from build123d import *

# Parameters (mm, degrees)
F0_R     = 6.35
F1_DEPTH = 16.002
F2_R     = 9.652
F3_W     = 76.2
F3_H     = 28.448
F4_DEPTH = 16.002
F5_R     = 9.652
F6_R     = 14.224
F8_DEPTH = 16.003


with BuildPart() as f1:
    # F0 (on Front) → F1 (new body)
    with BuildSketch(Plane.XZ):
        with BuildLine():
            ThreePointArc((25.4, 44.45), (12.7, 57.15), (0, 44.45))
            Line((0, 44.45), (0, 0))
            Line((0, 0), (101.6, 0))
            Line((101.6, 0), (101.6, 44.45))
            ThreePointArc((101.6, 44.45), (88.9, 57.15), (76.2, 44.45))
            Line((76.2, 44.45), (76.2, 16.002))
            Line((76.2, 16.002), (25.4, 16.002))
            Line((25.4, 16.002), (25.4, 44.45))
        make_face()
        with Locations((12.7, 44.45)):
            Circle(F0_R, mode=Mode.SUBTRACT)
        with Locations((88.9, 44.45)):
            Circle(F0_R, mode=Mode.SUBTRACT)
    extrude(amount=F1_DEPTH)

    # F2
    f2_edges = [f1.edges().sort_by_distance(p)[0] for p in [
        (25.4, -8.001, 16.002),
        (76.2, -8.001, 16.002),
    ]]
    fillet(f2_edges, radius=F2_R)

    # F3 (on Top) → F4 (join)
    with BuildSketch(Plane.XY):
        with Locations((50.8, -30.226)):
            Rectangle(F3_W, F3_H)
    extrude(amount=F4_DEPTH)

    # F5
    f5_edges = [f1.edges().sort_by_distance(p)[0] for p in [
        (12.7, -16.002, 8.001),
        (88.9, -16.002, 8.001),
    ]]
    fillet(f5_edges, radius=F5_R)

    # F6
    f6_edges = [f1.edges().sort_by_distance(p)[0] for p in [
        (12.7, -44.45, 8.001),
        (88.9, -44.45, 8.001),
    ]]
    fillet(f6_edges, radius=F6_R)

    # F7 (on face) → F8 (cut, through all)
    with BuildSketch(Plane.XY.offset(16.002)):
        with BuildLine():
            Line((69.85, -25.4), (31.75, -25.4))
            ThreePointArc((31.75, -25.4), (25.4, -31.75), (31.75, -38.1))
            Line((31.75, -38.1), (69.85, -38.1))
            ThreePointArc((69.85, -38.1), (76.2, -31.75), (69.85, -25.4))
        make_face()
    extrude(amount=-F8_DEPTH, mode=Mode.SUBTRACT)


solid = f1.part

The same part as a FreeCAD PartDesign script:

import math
import FreeCAD as App
import Part
import Sketcher

V = App.Vector
Q = App.Units.Quantity


def edges_at(feature, points):
    """Names of the edges that pass closest to the given points."""
    edges = feature.Shape.Edges
    near = lambda p: min(range(len(edges)), key=lambda i: edges[i].distToShape(Part.Vertex(*p))[0])
    return sorted({f"Edge{near(p) + 1}" for p in points})


def add_polygon(sketch, points):
    """Adds a closed chain of lines whose ends are joined by coincident constraints."""
    first, n = sketch.GeometryCount, len(points)
    for a, b in zip(points, points[1:] + points[:1]):
        sketch.addGeometry(Part.LineSegment(App.Vector(*a, 0), App.Vector(*b, 0)), False)
    for i in range(n):
        sketch.addConstraint(Sketcher.Constraint("Coincident", first + i, 2, first + (i + 1) % n, 1))

doc = App.newDocument("Part")
params = doc.addObject("Spreadsheet::Sheet", "Params")
for row, (alias, value) in enumerate([
    ("sketch1_diameter", "0.5 in"),
    ("sketch1_radius", "0.5 in"),
    ("sketch1_width", "4 in"),
    ("sketch1_height", "1.75 in"),
    ("sketch1_height2", "1.12 in"),
    ("pad1_length", "0.63 in"),
    ("fillet_radius", "0.38 in"),
    ("sketch2_width", "3 in"),
    ("sketch2_height", "1.12 in"),
    ("pad2_length", "0.63 in"),
    ("fillet2_radius", "0.38 in"),
    ("fillet3_radius", "0.56 in"),
    ("sketch3_radius", "0.25 in"),
    ("sketch3_width", "1.5 in"),
], start=1):
    params.set(f"A{row}", alias)
    params.set(f"B{row}", "=" + value)
    params.setAlias(f"B{row}", alias)

body = doc.addObject("PartDesign::Body", "Body")

# Sketch on XZ plane
sketch1 = doc.addObject("Sketcher::SketchObject", "Sketch")
body.addObject(sketch1)
sketch1.AttachmentSupport = (doc.XZ_Plane, [""])
sketch1.MapMode = "FlatFace"
sketch1.addGeometry([
    Part.ArcOfCircle(Part.Circle(V(13, 44, 0), V(0, 0, 1), 13), math.radians(0), math.radians(180)),  # 0
    Part.LineSegment(V(0, 44, 0), V(0, 0, 0)),  # 1
    Part.LineSegment(V(0, 0, 0), V(102, 0, 0)),  # 2
    Part.LineSegment(V(102, 0, 0), V(102, 44, 0)),  # 3
    Part.ArcOfCircle(Part.Circle(V(89, 44, 0), V(0, 0, 1), 13), math.radians(0), math.radians(180)),  # 4
    Part.LineSegment(V(76, 44, 0), V(76, 16, 0)),  # 5
    Part.LineSegment(V(76, 16, 0), V(25, 16, 0)),  # 6
    Part.LineSegment(V(25, 16, 0), V(25, 44, 0)),  # 7
    Part.Circle(V(13, 44, 0), V(0, 0, 1), 6),  # 8
    Part.Circle(V(89, 44, 0), V(0, 0, 1), 6),  # 9
], False)
sketch1.addConstraint([
    Sketcher.Constraint("Tangent", 0, 2, 1, 1),
    Sketcher.Constraint("Coincident", 1, 2, 2, 1),
    Sketcher.Constraint("Coincident", 2, 2, 3, 1),
    Sketcher.Constraint("Tangent", 3, 2, 4, 1),
    Sketcher.Constraint("Tangent", 4, 2, 5, 1),
    Sketcher.Constraint("Coincident", 5, 2, 6, 1),
    Sketcher.Constraint("Coincident", 6, 2, 7, 1),
    Sketcher.Constraint("Tangent", 7, 2, 0, 1),
    Sketcher.Constraint("Vertical", 1),
    Sketcher.Constraint("Horizontal", 2),
    Sketcher.Constraint("Vertical", 3),
    Sketcher.Constraint("Vertical", 5),
    Sketcher.Constraint("Horizontal", 6),
    Sketcher.Constraint("Vertical", 7),
    Sketcher.Constraint("Coincident", 1, 2, -1, 1),
    Sketcher.Constraint("Coincident", 8, 3, 0, 3),
    Sketcher.Constraint("Coincident", 9, 3, 4, 3),
    Sketcher.Constraint("Equal", 0, 4),
    Sketcher.Constraint("Equal", 8, 9),
    Sketcher.Constraint("Horizontal", 0, 3, 4, 3),
    Sketcher.Constraint("Diameter", 8, Q("0.5 in")),
    Sketcher.Constraint("Radius", 0, Q("0.5 in")),
    Sketcher.Constraint("DistanceX", 2, 1, 2, 2, Q("4 in")),
    Sketcher.Constraint("DistanceY", 1, 2, 1, 1, Q("1.75 in")),
    Sketcher.Constraint("DistanceY", 5, 2, 5, 1, Q("1.12 in")),
])
sketch1.setExpression("Constraints[20]", "Params.sketch1_diameter")
sketch1.setExpression("Constraints[21]", "Params.sketch1_radius")
sketch1.setExpression("Constraints[22]", "Params.sketch1_width")
sketch1.setExpression("Constraints[23]", "Params.sketch1_height")
sketch1.setExpression("Constraints[24]", "Params.sketch1_height2")
pad1 = doc.addObject("PartDesign::Pad", "Pad")
body.addObject(pad1)
pad1.Profile = sketch1
pad1.setExpression("Length", "Params.pad1_length")
doc.recompute()

fillet = doc.addObject("PartDesign::Fillet", "Fillet")
body.addObject(fillet)
fillet.Base = (pad1, edges_at(pad1, [(25.4, -8.001, 16.002), (76.2, -8.001, 16.002)]))
fillet.setExpression("Radius", "Params.fillet_radius")

# Sketch on XY plane
sketch2 = doc.addObject("Sketcher::SketchObject", "Sketch001")
body.addObject(sketch2)
sketch2.AttachmentSupport = (doc.XY_Plane, [""])
sketch2.MapMode = "FlatFace"
add_polygon(sketch2, [(13, -16), (13, -44), (89, -44), (89, -16)])  # lines 0-3
sketch2.addConstraint([
    Sketcher.Constraint("Vertical", 0),
    Sketcher.Constraint("Horizontal", 1),
    Sketcher.Constraint("Vertical", 2),
    Sketcher.Constraint("Horizontal", 3),
    Sketcher.Constraint("DistanceX", 1, 1, 1, 2, Q("3 in")),
    Sketcher.Constraint("DistanceY", 0, 2, 0, 1, Q("1.12 in")),
    Sketcher.Constraint("DistanceX", -1, 1, 0, 2, Q("0.5 in")),
    Sketcher.Constraint("DistanceY", 0, 2, -1, 1, Q("1.75 in")),
])
sketch2.setExpression("Constraints[8]", "Params.sketch2_width")
sketch2.setExpression("Constraints[9]", "Params.sketch2_height")
pad2 = doc.addObject("PartDesign::Pad", "Pad001")
body.addObject(pad2)
pad2.Profile = sketch2
pad2.setExpression("Length", "Params.pad2_length")
doc.recompute()

fillet2 = doc.addObject("PartDesign::Fillet", "Fillet001")
body.addObject(fillet2)
fillet2.Base = (pad2, edges_at(pad2, [(12.7, -16.002, 8.001), (88.9, -16.002, 8.001)]))
fillet2.setExpression("Radius", "Params.fillet2_radius")
doc.recompute()

fillet3 = doc.addObject("PartDesign::Fillet", "Fillet002")
body.addObject(fillet3)
fillet3.Base = (fillet2, edges_at(fillet2, [(12.7, -44.45, 8.001), (88.9, -44.45, 8.001)]))
fillet3.setExpression("Radius", "Params.fillet3_radius")

# Sketch on XY plane
sketch3 = doc.addObject("Sketcher::SketchObject", "Sketch002")
body.addObject(sketch3)
sketch3.AttachmentSupport = (doc.XY_Plane, [""])
sketch3.MapMode = "FlatFace"
sketch3.AttachmentOffset = App.Placement(V(0, 0, 0.63 * 25.4), App.Rotation())
sketch3.addGeometry([
    Part.LineSegment(V(70, -25, 0), V(32, -25, 0)),
    Part.ArcOfCircle(Part.Circle(V(32, -32, 0), V(0, 0, 1), 6), math.radians(90), math.radians(270)),
    Part.LineSegment(V(32, -38, 0), V(70, -38, 0)),
    Part.ArcOfCircle(Part.Circle(V(70, -32, 0), V(0, 0, 1), 6), math.radians(-90), math.radians(90)),
], False)
sketch3.addConstraint([
    Sketcher.Constraint("Tangent", 0, 2, 1, 1),
    Sketcher.Constraint("Tangent", 1, 2, 2, 1),
    Sketcher.Constraint("Tangent", 2, 2, 3, 1),
    Sketcher.Constraint("Tangent", 3, 2, 0, 1),
    Sketcher.Constraint("Horizontal", 0),
    Sketcher.Constraint("Horizontal", 2),
    Sketcher.Constraint("Radius", 1, Q("0.25 in")),
    Sketcher.Constraint("DistanceX", 0, 2, 0, 1, Q("1.5 in")),
    Sketcher.Constraint("DistanceY", 0, 2, -1, 1, Q("1 in")),
    Sketcher.Constraint("DistanceX", -1, 1, 1, 3, Q("1.25 in")),
])
sketch3.setExpression("Constraints[6]", "Params.sketch3_radius")
sketch3.setExpression("Constraints[7]", "Params.sketch3_width")
pocket1 = doc.addObject("PartDesign::Pocket", "Pocket")
body.addObject(pocket1)
pocket1.Profile = sketch3
pocket1.Type = "ThroughAll"

doc.recompute()
